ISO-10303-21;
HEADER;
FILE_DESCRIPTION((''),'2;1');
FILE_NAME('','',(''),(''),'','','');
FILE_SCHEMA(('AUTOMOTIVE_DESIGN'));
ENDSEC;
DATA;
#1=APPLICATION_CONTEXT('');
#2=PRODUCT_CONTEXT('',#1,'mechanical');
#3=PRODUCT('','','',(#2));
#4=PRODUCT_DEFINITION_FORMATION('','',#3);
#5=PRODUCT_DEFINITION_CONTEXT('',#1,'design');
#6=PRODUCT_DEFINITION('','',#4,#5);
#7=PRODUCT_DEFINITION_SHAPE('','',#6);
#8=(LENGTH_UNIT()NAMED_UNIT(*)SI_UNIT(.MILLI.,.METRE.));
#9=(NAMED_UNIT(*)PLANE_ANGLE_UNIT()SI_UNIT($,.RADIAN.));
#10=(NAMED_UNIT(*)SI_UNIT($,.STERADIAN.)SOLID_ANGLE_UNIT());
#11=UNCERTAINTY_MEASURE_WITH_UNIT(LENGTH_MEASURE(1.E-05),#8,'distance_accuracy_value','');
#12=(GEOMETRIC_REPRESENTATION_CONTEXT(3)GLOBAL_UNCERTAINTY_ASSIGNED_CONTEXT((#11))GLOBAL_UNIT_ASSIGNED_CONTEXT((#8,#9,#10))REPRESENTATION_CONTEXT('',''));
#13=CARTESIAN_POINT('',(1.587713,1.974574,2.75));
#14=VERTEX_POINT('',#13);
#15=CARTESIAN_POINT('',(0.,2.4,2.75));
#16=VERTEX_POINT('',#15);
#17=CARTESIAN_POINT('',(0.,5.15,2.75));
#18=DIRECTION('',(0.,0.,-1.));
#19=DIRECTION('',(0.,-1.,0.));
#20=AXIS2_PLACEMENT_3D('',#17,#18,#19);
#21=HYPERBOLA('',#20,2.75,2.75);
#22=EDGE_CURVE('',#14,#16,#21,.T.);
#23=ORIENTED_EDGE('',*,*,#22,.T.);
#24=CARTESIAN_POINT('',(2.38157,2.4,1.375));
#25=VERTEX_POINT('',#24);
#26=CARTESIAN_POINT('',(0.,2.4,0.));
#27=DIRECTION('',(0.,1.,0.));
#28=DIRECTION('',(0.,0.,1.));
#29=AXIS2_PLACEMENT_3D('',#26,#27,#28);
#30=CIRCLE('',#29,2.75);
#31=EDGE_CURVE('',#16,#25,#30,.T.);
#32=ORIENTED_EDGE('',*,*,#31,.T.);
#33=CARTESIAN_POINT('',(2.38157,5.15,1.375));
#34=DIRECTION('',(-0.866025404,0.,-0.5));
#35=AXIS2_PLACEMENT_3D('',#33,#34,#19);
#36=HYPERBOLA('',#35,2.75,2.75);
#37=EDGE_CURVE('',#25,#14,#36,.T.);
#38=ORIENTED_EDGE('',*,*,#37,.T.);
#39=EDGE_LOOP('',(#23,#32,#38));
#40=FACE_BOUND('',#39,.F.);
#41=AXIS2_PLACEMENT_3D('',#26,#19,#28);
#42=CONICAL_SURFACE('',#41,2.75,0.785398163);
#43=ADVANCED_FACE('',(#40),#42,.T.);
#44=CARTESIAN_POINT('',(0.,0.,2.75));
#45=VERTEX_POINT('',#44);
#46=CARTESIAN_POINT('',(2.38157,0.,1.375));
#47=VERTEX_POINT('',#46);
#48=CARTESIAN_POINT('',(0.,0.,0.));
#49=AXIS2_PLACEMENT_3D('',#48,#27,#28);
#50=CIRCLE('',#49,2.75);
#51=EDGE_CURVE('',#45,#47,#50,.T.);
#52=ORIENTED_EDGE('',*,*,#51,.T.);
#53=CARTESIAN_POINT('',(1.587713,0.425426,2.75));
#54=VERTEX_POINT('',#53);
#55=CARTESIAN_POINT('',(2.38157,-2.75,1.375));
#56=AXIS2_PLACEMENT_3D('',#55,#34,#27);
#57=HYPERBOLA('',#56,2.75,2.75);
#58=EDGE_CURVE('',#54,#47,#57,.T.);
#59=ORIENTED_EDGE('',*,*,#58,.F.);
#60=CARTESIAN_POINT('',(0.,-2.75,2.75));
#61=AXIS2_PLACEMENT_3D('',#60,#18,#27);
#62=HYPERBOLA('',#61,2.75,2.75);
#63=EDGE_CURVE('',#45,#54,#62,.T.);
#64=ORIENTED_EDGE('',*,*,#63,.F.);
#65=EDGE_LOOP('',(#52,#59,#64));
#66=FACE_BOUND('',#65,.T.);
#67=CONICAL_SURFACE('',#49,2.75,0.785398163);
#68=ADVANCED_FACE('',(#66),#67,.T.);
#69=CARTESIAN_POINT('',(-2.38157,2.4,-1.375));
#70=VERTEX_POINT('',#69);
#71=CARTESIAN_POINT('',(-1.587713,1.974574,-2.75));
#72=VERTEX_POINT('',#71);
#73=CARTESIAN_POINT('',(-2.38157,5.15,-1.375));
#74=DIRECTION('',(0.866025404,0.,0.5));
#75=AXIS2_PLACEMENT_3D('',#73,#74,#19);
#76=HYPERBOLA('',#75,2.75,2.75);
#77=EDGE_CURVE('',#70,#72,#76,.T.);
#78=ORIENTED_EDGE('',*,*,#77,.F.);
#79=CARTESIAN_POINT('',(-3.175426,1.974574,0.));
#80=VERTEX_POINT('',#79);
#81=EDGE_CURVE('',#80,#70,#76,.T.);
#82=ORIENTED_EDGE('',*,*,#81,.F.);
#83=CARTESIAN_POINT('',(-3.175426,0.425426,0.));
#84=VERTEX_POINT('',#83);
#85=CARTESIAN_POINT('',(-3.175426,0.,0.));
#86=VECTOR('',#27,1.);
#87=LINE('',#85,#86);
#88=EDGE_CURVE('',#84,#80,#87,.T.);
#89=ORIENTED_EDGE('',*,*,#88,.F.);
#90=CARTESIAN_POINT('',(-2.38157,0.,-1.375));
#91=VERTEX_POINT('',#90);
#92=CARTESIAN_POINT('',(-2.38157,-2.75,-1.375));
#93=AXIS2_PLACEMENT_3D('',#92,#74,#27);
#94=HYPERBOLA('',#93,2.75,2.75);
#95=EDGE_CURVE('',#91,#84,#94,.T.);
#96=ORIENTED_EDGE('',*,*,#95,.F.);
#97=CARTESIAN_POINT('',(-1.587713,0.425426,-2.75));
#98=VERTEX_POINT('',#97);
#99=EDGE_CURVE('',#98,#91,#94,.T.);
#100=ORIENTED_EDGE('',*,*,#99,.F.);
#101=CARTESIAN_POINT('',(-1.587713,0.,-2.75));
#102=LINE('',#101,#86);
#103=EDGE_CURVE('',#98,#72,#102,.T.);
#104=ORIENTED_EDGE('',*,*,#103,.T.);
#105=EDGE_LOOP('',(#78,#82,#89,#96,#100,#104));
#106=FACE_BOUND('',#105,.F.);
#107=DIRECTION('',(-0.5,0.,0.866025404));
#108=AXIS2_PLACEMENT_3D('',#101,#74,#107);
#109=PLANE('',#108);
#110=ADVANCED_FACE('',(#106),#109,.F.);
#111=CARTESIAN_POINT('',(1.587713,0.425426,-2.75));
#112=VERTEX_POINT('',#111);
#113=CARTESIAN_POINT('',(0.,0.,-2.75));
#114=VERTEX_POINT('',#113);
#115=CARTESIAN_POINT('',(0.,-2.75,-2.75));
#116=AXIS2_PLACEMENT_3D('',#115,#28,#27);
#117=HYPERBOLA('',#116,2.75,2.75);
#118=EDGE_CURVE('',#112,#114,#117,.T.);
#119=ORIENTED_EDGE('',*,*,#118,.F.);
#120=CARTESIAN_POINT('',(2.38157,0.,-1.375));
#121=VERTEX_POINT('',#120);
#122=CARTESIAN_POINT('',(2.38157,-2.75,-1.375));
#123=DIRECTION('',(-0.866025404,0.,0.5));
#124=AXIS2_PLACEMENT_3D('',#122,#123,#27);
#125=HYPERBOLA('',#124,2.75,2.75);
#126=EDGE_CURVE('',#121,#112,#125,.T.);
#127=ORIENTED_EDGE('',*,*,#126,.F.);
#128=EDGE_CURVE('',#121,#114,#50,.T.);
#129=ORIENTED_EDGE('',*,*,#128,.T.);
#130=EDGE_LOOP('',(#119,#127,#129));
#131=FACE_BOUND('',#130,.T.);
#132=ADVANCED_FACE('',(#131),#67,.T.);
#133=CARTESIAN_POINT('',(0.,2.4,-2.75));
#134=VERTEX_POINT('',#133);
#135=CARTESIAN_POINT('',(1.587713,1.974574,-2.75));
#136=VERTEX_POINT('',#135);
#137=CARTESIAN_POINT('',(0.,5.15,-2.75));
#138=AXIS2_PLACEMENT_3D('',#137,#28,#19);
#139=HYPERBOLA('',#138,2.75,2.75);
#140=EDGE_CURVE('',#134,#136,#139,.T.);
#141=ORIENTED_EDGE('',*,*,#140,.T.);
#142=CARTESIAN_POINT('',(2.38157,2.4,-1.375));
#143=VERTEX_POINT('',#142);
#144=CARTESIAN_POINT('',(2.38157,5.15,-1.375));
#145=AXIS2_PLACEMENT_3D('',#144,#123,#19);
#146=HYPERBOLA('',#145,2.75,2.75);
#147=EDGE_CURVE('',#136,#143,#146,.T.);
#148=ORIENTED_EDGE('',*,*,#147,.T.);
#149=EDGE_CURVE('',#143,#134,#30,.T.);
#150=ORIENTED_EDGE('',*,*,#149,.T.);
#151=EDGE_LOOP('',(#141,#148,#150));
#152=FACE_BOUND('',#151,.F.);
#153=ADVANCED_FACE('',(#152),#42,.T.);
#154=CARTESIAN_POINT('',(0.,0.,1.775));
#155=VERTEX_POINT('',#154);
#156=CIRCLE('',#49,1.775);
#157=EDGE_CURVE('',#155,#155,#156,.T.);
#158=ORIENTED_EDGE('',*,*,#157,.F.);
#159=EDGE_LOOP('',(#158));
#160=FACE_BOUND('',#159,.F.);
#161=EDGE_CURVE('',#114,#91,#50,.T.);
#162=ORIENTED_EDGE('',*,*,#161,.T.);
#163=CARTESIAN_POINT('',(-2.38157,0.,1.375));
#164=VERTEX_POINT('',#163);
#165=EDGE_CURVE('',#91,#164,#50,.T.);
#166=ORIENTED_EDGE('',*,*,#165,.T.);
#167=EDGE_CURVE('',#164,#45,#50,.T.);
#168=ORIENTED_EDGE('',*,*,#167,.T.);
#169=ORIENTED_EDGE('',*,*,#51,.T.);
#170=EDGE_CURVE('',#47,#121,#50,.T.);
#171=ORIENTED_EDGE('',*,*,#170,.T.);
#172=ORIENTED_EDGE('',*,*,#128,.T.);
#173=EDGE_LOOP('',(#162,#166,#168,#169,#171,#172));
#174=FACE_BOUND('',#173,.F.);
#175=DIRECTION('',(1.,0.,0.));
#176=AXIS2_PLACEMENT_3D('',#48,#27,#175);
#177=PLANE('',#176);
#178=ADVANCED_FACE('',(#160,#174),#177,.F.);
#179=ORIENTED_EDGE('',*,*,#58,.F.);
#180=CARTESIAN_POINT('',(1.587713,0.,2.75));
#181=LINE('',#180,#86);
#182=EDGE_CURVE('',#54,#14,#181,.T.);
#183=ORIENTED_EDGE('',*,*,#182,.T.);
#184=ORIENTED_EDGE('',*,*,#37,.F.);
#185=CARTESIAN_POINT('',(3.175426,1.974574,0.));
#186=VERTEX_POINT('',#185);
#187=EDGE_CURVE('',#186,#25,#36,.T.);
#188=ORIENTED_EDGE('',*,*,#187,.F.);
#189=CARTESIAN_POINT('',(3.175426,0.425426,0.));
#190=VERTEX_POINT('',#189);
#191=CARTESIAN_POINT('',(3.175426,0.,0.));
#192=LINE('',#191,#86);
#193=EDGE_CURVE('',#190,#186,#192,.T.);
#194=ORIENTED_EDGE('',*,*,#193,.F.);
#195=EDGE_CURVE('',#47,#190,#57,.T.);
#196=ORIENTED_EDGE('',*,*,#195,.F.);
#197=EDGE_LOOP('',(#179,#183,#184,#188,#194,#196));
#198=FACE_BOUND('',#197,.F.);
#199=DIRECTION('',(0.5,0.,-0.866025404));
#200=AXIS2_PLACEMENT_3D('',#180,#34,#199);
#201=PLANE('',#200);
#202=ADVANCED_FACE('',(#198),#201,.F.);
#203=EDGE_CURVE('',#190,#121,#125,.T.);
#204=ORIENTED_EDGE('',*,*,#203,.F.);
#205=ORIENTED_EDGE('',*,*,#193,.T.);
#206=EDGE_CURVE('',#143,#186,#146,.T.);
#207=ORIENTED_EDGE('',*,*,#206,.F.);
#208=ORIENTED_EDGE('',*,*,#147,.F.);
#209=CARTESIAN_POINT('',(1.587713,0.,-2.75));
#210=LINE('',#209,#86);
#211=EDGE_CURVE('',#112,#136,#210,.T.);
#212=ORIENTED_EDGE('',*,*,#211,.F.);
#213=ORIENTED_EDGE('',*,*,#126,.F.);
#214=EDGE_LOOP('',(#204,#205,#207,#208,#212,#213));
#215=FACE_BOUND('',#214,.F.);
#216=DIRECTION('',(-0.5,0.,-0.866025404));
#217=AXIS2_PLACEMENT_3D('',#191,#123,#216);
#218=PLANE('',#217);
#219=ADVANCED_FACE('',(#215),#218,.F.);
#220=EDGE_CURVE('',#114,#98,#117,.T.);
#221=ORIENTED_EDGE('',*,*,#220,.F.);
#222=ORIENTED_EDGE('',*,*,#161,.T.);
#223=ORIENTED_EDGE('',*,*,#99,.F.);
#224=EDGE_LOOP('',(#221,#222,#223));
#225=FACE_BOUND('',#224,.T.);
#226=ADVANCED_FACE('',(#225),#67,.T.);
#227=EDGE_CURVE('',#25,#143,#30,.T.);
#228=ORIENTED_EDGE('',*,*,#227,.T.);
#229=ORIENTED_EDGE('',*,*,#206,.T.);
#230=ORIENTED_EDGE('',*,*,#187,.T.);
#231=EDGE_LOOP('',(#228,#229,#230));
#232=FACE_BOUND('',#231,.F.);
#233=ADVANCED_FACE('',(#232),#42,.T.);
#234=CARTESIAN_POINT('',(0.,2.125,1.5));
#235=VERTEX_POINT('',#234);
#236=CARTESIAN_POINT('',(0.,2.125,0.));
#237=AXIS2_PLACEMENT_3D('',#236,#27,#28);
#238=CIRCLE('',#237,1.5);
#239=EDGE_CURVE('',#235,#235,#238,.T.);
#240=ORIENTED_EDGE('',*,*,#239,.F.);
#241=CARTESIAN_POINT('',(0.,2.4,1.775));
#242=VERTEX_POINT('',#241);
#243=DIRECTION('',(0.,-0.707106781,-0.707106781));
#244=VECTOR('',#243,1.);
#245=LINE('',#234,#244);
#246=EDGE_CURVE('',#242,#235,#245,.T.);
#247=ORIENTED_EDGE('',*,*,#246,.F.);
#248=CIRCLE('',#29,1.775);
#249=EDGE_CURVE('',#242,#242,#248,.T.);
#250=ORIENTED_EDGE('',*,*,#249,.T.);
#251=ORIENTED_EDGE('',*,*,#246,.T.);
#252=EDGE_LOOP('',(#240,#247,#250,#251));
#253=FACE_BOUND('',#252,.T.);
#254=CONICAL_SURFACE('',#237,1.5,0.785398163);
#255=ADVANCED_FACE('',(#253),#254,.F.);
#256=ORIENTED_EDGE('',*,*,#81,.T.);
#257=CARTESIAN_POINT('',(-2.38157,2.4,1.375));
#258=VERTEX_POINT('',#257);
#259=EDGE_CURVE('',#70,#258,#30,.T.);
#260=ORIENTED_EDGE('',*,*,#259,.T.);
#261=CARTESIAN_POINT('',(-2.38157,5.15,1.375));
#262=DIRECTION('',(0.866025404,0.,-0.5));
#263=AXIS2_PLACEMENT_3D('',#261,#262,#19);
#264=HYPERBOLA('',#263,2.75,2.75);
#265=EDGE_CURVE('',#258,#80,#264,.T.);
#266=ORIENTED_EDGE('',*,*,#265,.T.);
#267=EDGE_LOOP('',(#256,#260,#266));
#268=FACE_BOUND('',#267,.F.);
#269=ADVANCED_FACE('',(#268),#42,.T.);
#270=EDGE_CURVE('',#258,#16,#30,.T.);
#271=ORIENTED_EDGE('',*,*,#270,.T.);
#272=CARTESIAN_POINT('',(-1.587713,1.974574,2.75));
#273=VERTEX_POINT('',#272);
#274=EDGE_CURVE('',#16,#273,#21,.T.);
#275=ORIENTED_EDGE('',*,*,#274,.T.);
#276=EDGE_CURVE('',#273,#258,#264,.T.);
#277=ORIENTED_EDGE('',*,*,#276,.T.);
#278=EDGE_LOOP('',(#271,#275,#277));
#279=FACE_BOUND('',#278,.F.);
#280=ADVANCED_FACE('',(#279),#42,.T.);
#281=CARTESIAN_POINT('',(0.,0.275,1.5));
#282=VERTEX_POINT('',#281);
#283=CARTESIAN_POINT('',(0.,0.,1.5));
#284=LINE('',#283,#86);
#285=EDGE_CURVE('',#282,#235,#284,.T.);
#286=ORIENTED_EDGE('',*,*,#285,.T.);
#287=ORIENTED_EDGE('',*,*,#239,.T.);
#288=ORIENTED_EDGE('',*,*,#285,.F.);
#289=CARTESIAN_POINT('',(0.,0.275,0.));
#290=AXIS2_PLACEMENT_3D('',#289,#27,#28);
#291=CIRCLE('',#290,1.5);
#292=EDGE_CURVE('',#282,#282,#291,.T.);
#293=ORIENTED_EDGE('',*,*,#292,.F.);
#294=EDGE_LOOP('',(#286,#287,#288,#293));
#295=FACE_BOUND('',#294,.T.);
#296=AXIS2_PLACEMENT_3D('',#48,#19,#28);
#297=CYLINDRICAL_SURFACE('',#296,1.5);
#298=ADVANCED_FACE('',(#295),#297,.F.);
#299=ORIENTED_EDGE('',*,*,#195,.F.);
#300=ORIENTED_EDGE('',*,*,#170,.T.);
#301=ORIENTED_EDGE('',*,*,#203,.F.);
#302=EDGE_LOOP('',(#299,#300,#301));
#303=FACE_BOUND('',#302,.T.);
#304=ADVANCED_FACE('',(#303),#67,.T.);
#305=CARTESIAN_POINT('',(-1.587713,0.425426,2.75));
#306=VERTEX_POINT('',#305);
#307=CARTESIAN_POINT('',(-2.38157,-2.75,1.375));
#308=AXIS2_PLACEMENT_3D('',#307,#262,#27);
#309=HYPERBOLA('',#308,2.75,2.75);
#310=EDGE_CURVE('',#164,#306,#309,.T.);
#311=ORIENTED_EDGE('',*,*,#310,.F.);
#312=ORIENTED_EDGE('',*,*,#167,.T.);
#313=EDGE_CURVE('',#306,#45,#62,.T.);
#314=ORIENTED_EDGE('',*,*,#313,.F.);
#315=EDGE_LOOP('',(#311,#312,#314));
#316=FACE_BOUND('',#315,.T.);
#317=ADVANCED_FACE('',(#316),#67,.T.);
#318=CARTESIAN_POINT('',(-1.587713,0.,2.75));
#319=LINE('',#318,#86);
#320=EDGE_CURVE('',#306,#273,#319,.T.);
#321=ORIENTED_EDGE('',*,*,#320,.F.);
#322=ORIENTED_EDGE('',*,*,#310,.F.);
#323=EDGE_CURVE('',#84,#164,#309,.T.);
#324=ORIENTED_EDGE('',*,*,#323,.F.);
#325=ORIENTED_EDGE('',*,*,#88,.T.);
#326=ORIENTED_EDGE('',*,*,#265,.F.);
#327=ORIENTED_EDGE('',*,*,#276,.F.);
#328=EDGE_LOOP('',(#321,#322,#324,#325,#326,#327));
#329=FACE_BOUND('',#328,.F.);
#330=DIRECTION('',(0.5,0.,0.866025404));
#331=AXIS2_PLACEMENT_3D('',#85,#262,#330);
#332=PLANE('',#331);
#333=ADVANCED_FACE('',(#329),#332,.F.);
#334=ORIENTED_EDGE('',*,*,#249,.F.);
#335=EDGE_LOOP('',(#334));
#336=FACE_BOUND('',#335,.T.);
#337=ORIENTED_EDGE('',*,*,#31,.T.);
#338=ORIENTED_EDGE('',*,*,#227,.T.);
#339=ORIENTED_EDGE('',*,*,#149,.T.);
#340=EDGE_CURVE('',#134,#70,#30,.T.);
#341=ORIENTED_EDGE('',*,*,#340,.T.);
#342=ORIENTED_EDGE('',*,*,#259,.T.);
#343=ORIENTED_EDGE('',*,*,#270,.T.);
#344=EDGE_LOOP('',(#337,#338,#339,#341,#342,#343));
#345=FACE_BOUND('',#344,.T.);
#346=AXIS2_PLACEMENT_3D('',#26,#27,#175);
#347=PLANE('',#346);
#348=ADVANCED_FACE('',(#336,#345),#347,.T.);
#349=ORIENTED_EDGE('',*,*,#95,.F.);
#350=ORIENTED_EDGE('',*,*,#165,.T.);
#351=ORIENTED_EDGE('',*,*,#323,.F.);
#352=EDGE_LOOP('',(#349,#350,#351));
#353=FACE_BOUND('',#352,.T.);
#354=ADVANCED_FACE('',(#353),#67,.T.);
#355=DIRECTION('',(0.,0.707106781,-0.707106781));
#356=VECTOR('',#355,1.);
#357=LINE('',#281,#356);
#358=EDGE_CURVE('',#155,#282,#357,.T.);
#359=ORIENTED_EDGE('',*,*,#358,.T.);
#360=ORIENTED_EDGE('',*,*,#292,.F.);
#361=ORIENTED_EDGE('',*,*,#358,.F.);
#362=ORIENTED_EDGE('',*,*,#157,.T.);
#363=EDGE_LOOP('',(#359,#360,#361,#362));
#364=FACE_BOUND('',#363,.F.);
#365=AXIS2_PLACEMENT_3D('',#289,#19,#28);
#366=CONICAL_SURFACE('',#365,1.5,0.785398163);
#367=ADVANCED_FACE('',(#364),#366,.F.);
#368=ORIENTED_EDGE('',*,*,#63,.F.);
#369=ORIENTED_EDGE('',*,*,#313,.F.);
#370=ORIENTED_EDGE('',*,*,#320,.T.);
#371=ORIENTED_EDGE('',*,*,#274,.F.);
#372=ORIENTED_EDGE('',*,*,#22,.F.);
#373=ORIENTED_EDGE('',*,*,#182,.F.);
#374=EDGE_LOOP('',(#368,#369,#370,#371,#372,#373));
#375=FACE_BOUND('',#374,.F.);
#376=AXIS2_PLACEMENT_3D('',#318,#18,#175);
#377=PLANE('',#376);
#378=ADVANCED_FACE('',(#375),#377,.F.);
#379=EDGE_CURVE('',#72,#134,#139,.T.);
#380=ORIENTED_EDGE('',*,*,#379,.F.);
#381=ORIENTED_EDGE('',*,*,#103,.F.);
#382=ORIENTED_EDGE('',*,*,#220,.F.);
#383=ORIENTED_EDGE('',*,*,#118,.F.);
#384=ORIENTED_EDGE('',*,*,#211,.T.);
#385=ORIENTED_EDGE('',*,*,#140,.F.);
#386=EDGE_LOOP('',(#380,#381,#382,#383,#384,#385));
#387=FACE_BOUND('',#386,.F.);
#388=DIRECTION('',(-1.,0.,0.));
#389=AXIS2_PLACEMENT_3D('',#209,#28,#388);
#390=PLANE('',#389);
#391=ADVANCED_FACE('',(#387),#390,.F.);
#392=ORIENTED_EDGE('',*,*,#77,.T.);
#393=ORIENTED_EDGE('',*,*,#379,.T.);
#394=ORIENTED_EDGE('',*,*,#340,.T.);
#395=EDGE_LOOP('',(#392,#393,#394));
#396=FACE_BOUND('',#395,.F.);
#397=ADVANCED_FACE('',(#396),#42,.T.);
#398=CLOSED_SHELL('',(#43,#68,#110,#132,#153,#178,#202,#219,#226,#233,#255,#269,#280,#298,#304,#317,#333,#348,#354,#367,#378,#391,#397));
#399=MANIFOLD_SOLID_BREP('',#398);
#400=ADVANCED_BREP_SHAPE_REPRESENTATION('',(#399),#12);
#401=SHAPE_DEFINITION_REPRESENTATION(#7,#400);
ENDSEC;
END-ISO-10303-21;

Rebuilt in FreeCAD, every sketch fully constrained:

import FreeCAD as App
import Part
import Sketcher
Q = App.Units.Quantity


def edges_at(feature, points):
    """Names of the edges that pass closest to the given points."""
    edges = feature.Shape.Edges
    near = lambda p: min(range(len(edges)), key=lambda i: edges[i].distToShape(Part.Vertex(*p))[0])
    return sorted({f"Edge{near(p) + 1}" for p in points})


def add_polygon(sketch, points):
    """Adds a closed chain of lines whose ends are joined by coincident constraints."""
    first, n = sketch.GeometryCount, len(points)
    for a, b in zip(points, points[1:] + points[:1]):
        sketch.addGeometry(Part.LineSegment(App.Vector(*a, 0), App.Vector(*b, 0)), False)
    for i in range(n):
        sketch.addConstraint(Sketcher.Constraint("Coincident", first + i, 2, first + (i + 1) % n, 1))

doc = App.newDocument("Part")
body = doc.addObject("PartDesign::Body", "Body")

sketch1 = body.newObject("Sketcher::SketchObject", "Sketch")
sketch1.AttachmentSupport = (doc.getObject("XZ_Plane"), [""])
sketch1.MapMode = "FlatFace"
add_polygon(sketch1, [(3.175426, 0), (1.587713, -2.75), (-1.587713, -2.75), (-3.175426, 0), (-1.587713, 2.75), (1.587713, 2.75)])
sketch1.addGeometry(Part.Circle(App.Vector(0, 0, 0), App.Vector(0, 0, 1), 1.5), False)
sketch1.addConstraint(Sketcher.Constraint("Horizontal", 1))
sketch1.addConstraint(Sketcher.Constraint("Horizontal", 4))
sketch1.addConstraint(Sketcher.Constraint("Coincident", 6, 3, -1, 1))
sketch1.addConstraint(Sketcher.Constraint("Symmetric", 0, 2, 3, 2, -1, 1))
sketch1.addConstraint(Sketcher.Constraint("Symmetric", 2, 2, 5, 2, -1, 1))
sketch1.addConstraint(Sketcher.Constraint("PointOnObject", 2, 2, -1))
sketch1.addConstraint(Sketcher.Constraint("Parallel", 2, 5))
sketch1.addConstraint(Sketcher.Constraint("Vertical", 1, 2, 3, 2))
sketch1.addConstraint(Sketcher.Constraint("Diameter", 6, Q("3 mm")))
sketch1.addConstraint(Sketcher.Constraint("Angle", 0, Q("-120 deg")))
sketch1.addConstraint(Sketcher.Constraint("DistanceY", 1, 2, 3, 2, Q("5.5 mm")))
sketch1.addConstraint(Sketcher.Constraint("DistanceX", 1, 2, 1, 1, Q("3.175426 mm")))
pad1 = body.newObject("PartDesign::Pad", "Pad")
pad1.Profile = sketch1
pad1.Length = 2.4
pad1.Reversed = True

sketch2 = body.newObject("Sketcher::SketchObject", "Sketch001")
sketch2.AttachmentSupport = (doc.getObject("YZ_Plane"), [""])
sketch2.MapMode = "FlatFace"
add_polygon(sketch2, [(0, 2.75), (0.7, 3.45), (0, 3.45)])
add_polygon(sketch2, [(2.4, 2.75), (2.4, 3.45), (1.7, 3.45)])
sketch2.addConstraint(Sketcher.Constraint("Horizontal", 1))
sketch2.addConstraint(Sketcher.Constraint("Vertical", 2))
sketch2.addConstraint(Sketcher.Constraint("Vertical", 3))
sketch2.addConstraint(Sketcher.Constraint("Horizontal", 4))
sketch2.addConstraint(Sketcher.Constraint("PointOnObject", 1, 2, -2))
sketch2.addConstraint(Sketcher.Constraint("Perpendicular", 0, 5))
sketch2.addConstraint(Sketcher.Constraint("Horizontal", 1, 2, 3, 2))
sketch2.addConstraint(Sketcher.Constraint("Horizontal", 2, 2, 5, 2))
sketch2.addConstraint(Sketcher.Constraint("Equal", 1, 4))
sketch2.addConstraint(Sketcher.Constraint("DistanceX", 1, 2, 1, 1, Q("0.7 mm")))
sketch2.addConstraint(Sketcher.Constraint("DistanceX", 0, 2, 4, 2, Q("1 mm")))
sketch2.addConstraint(Sketcher.Constraint("DistanceY", -1, 1, 0, 2, Q("3.45 mm")))
groove = body.newObject("PartDesign::Groove", "Groove")
groove.Profile = sketch2
groove.ReferenceAxis = (sketch2, ["H_Axis"])
groove.Angle = 360
doc.recompute()

chamfer = body.newObject("PartDesign::Chamfer", "Chamfer")
chamfer.Base = (groove, edges_at(groove, [(0, 0, -1.5), (0, 2.4, -1.5)]))
chamfer.Size = 0.275

doc.recompute()
